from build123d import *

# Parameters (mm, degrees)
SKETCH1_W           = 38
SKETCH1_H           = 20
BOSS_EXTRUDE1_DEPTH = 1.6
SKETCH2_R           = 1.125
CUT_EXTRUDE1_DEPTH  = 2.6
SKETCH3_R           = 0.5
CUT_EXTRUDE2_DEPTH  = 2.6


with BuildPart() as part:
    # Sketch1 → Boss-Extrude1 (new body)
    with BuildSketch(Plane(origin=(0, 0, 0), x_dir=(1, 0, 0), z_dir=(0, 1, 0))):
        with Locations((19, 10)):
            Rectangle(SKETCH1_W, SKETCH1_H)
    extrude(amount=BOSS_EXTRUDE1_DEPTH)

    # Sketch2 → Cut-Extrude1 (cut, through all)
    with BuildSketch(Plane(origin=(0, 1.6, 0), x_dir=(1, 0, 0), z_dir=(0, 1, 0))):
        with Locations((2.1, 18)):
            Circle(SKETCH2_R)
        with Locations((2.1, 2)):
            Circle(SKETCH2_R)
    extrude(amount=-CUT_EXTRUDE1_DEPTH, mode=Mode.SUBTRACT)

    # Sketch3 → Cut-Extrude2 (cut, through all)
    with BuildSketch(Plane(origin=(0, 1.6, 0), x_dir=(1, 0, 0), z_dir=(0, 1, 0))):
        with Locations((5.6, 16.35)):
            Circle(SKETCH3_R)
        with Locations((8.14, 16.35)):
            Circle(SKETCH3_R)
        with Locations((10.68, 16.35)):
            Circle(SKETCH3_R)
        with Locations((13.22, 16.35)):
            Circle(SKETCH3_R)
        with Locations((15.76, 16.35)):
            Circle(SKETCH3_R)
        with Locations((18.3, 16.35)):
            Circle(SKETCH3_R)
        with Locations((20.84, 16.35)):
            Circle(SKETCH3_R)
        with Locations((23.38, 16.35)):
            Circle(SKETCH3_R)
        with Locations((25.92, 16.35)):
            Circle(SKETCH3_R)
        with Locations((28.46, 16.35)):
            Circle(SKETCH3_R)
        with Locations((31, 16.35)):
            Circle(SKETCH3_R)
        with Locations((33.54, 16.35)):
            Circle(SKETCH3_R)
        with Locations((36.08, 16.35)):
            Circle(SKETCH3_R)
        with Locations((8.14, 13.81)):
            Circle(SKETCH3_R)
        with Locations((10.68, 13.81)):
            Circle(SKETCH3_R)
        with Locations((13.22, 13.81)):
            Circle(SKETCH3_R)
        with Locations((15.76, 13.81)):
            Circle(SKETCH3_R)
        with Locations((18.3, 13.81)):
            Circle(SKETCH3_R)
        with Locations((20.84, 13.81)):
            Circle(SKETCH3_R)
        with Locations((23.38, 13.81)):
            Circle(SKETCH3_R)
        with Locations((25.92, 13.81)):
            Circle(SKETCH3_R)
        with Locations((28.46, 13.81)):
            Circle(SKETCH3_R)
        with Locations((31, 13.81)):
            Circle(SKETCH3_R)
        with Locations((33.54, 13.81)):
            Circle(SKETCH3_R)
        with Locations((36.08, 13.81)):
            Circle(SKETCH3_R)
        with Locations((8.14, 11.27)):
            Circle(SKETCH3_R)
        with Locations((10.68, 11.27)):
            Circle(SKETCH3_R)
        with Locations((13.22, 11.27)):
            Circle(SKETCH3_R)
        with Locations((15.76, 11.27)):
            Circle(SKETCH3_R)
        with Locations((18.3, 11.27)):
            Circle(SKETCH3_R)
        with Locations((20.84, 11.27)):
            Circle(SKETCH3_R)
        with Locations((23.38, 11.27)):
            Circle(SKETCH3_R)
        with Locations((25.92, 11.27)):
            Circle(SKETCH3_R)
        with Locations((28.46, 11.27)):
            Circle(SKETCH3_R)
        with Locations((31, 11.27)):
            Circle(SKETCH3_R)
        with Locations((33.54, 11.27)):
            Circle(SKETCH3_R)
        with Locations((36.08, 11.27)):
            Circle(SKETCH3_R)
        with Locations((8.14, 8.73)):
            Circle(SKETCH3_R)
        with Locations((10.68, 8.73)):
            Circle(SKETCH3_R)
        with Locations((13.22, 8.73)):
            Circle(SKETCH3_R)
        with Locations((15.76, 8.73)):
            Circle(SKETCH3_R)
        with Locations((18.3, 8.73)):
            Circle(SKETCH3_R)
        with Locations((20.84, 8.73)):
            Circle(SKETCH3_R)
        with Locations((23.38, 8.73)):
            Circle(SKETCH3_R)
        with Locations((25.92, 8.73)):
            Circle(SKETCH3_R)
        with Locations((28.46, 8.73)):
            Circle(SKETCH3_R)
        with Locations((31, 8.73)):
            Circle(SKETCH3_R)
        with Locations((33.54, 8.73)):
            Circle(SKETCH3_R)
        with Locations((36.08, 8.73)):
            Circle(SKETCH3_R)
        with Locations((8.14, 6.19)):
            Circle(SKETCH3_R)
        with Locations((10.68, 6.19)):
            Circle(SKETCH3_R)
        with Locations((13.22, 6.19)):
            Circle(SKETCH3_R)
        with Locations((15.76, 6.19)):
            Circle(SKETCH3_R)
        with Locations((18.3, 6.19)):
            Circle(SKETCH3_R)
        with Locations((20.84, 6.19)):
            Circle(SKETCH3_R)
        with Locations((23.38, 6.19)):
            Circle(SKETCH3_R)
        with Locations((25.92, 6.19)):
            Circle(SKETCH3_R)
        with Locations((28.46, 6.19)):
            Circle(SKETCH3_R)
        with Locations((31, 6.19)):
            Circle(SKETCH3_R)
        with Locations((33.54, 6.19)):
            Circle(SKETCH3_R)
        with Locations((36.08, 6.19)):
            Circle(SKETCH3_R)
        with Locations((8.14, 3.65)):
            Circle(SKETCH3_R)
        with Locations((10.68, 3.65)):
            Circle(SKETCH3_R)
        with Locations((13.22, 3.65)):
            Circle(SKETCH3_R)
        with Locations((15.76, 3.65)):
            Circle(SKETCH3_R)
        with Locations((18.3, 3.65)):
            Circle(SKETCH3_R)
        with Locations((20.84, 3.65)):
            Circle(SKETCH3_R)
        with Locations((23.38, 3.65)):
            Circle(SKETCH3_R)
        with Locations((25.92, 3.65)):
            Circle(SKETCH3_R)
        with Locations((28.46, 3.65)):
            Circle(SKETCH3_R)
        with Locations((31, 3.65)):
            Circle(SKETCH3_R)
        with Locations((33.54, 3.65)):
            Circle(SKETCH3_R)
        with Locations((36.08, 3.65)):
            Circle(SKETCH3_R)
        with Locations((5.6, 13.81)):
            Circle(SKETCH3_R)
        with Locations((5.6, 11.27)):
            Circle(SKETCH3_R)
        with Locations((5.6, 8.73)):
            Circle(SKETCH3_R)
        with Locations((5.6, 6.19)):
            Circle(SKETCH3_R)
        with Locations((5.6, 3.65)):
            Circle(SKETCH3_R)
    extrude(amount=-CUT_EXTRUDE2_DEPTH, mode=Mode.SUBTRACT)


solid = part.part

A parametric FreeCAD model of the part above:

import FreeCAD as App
import Part
import Sketcher

V = App.Vector
Q = App.Units.Quantity


def add_polygon(sketch, points):
    """Adds a closed chain of lines whose ends are joined by coincident constraints."""
    first, n = sketch.GeometryCount, len(points)
    for a, b in zip(points, points[1:] + points[:1]):
        sketch.addGeometry(Part.LineSegment(App.Vector(*a, 0), App.Vector(*b, 0)), False)
    for i in range(n):
        sketch.addConstraint(Sketcher.Constraint("Coincident", first + i, 2, first + (i + 1) % n, 1))

doc = App.newDocument("Part")
body = doc.addObject("PartDesign::Body", "Body")

sketch1 = doc.addObject("Sketcher::SketchObject", "Sketch")
body.addObject(sketch1)
sketch1.AttachmentSupport = (doc.XZ_Plane, [""])
sketch1.MapMode = "FlatFace"
add_polygon(sketch1, [(0, -20), (0, 0), (38, 0), (38, -20)])
sketch1.addConstraint([
    Sketcher.Constraint("Vertical", 0),
    Sketcher.Constraint("Horizontal", 1),
    Sketcher.Constraint("Vertical", 2),
    Sketcher.Constraint("Horizontal", 3),
    Sketcher.Constraint("Coincident", 0, 2, -1, 1),
    Sketcher.Constraint("DistanceX", 1, 1, 1, 2, Q("38 mm")),
    Sketcher.Constraint("DistanceY", 0, 1, 0, 2, Q("20 mm")),
])
pad1 = doc.addObject("PartDesign::Pad", "Pad")
body.addObject(pad1)
pad1.Profile = sketch1
pad1.Length = 1.6
pad1.Reversed = True

sketch2 = doc.addObject("Sketcher::SketchObject", "Sketch001")
body.addObject(sketch2)
sketch2.AttachmentSupport = (doc.XZ_Plane, [""])
sketch2.MapMode = "FlatFace"
sketch2.AttachmentOffset = App.Placement(V(0, 0, -1.6), App.Rotation())
sketch2.addGeometry([
    Part.Circle(V(2.1, -18, 0), V(0, 0, 1), 1.125),
    Part.Circle(V(2.1, -2, 0), V(0, 0, 1), 1.125),
], False)
sketch2.addConstraint([
    Sketcher.Constraint("Equal", 0, 1),
    Sketcher.Constraint("Vertical", 0, 3, 1, 3),
    Sketcher.Constraint("Diameter", 0, Q("2.25 mm")),
    Sketcher.Constraint("DistanceY", 0, 3, -1, 1, Q("18 mm")),
    Sketcher.Constraint("DistanceY", 1, 3, -1, 1, Q("2 mm")),
    Sketcher.Constraint("DistanceX", -1, 1, 0, 3, Q("2.1 mm")),
])
pocket1 = doc.addObject("PartDesign::Pocket", "Pocket")
body.addObject(pocket1)
pocket1.Profile = sketch2
pocket1.Type = "ThroughAll"
pocket1.Reversed = True

sketch3 = doc.addObject("Sketcher::SketchObject", "Sketch002")
body.addObject(sketch3)
sketch3.AttachmentSupport = (doc.XZ_Plane, [""])
sketch3.MapMode = "FlatFace"
sketch3.AttachmentOffset = App.Placement(V(0, 0, -1.6), App.Rotation())
sketch3.addGeometry([
    Part.Circle(V(5.6, -16.35, 0), V(0, 0, 1), 0.5),
    Part.Circle(V(8.14, -16.35, 0), V(0, 0, 1), 0.5),
    Part.Circle(V(10.68, -16.35, 0), V(0, 0, 1), 0.5),
    Part.Circle(V(13.22, -16.35, 0), V(0, 0, 1), 0.5),
    Part.Circle(V(15.76, -16.35, 0), V(0, 0, 1), 0.5),
    Part.Circle(V(18.3, -16.35, 0), V(0, 0, 1), 0.5),
    Part.Circle(V(20.84, -16.35, 0), V(0, 0, 1), 0.5),
    Part.Circle(V(23.38, -16.35, 0), V(0, 0, 1), 0.5),
    Part.Circle(V(25.92, -16.35, 0), V(0, 0, 1), 0.5),
    Part.Circle(V(28.46, -16.35, 0), V(0, 0, 1), 0.5),
    Part.Circle(V(31, -16.35, 0), V(0, 0, 1), 0.5),
    Part.Circle(V(33.54, -16.35, 0), V(0, 0, 1), 0.5),
    Part.Circle(V(36.08, -16.35, 0), V(0, 0, 1), 0.5),
    Part.Circle(V(8.14, -13.81, 0), V(0, 0, 1), 0.5),
    Part.Circle(V(10.68, -13.81, 0), V(0, 0, 1), 0.5),
    Part.Circle(V(13.22, -13.81, 0), V(0, 0, 1), 0.5),
    Part.Circle(V(15.76, -13.81, 0), V(0, 0, 1), 0.5),
    Part.Circle(V(18.3, -13.81, 0), V(0, 0, 1), 0.5),
    Part.Circle(V(20.84, -13.81, 0), V(0, 0, 1), 0.5),
    Part.Circle(V(23.38, -13.81, 0), V(0, 0, 1), 0.5),
    Part.Circle(V(25.92, -13.81, 0), V(0, 0, 1), 0.5),
    Part.Circle(V(28.46, -13.81, 0), V(0, 0, 1), 0.5),
    Part.Circle(V(31, -13.81, 0), V(0, 0, 1), 0.5),
    Part.Circle(V(33.54, -13.81, 0), V(0, 0, 1), 0.5),
    Part.Circle(V(36.08, -13.81, 0), V(0, 0, 1), 0.5),
    Part.Circle(V(8.14, -11.27, 0), V(0, 0, 1), 0.5),
    Part.Circle(V(10.68, -11.27, 0), V(0, 0, 1), 0.5),
    Part.Circle(V(13.22, -11.27, 0), V(0, 0, 1), 0.5),
    Part.Circle(V(15.76, -11.27, 0), V(0, 0, 1), 0.5),
    Part.Circle(V(18.3, -11.27, 0), V(0, 0, 1), 0.5),
    Part.Circle(V(20.84, -11.27, 0), V(0, 0, 1), 0.5),
    Part.Circle(V(23.38, -11.27, 0), V(0, 0, 1), 0.5),
    Part.Circle(V(25.92, -11.27, 0), V(0, 0, 1), 0.5),
    Part.Circle(V(28.46, -11.27, 0), V(0, 0, 1), 0.5),
    Part.Circle(V(31, -11.27, 0), V(0, 0, 1), 0.5),
    Part.Circle(V(33.54, -11.27, 0), V(0, 0, 1), 0.5),
    Part.Circle(V(36.08, -11.27, 0), V(0, 0, 1), 0.5),
    Part.Circle(V(8.14, -8.73, 0), V(0, 0, 1), 0.5),
    Part.Circle(V(10.68, -8.73, 0), V(0, 0, 1), 0.5),
    Part.Circle(V(13.22, -8.73, 0), V(0, 0, 1), 0.5),
    Part.Circle(V(15.76, -8.73, 0), V(0, 0, 1), 0.5),
    Part.Circle(V(18.3, -8.73, 0), V(0, 0, 1), 0.5),
    Part.Circle(V(20.84, -8.73, 0), V(0, 0, 1), 0.5),
    Part.Circle(V(23.38, -8.73, 0), V(0, 0, 1), 0.5),
    Part.Circle(V(25.92, -8.73, 0), V(0, 0, 1), 0.5),
    Part.Circle(V(28.46, -8.73, 0), V(0, 0, 1), 0.5),
    Part.Circle(V(31, -8.73, 0), V(0, 0, 1), 0.5),
    Part.Circle(V(33.54, -8.73, 0), V(0, 0, 1), 0.5),
    Part.Circle(V(36.08, -8.73, 0), V(0, 0, 1), 0.5),
    Part.Circle(V(8.14, -6.19, 0), V(0, 0, 1), 0.5),
    Part.Circle(V(10.68, -6.19, 0), V(0, 0, 1), 0.5),
    Part.Circle(V(13.22, -6.19, 0), V(0, 0, 1), 0.5),
    Part.Circle(V(15.76, -6.19, 0), V(0, 0, 1), 0.5),
    Part.Circle(V(18.3, -6.19, 0), V(0, 0, 1), 0.5),
    Part.Circle(V(20.84, -6.19, 0), V(0, 0, 1), 0.5),
    Part.Circle(V(23.38, -6.19, 0), V(0, 0, 1), 0.5),
    Part.Circle(V(25.92, -6.19, 0), V(0, 0, 1), 0.5),
    Part.Circle(V(28.46, -6.19, 0), V(0, 0, 1), 0.5),
    Part.Circle(V(31, -6.19, 0), V(0, 0, 1), 0.5),
    Part.Circle(V(33.54, -6.19, 0), V(0, 0, 1), 0.5),
    Part.Circle(V(36.08, -6.19, 0), V(0, 0, 1), 0.5),
    Part.Circle(V(8.14, -3.65, 0), V(0, 0, 1), 0.5),
    Part.Circle(V(10.68, -3.65, 0), V(0, 0, 1), 0.5),
    Part.Circle(V(13.22, -3.65, 0), V(0, 0, 1), 0.5),
    Part.Circle(V(15.76, -3.65, 0), V(0, 0, 1), 0.5),
    Part.Circle(V(18.3, -3.65, 0), V(0, 0, 1), 0.5),
    Part.Circle(V(20.84, -3.65, 0), V(0, 0, 1), 0.5),
    Part.Circle(V(23.38, -3.65, 0), V(0, 0, 1), 0.5),
    Part.Circle(V(25.92, -3.65, 0), V(0, 0, 1), 0.5),
    Part.Circle(V(28.46, -3.65, 0), V(0, 0, 1), 0.5),
    Part.Circle(V(31, -3.65, 0), V(0, 0, 1), 0.5),
    Part.Circle(V(33.54, -3.65, 0), V(0, 0, 1), 0.5),
    Part.Circle(V(36.08, -3.65, 0), V(0, 0, 1), 0.5),
    Part.Circle(V(5.6, -13.81, 0), V(0, 0, 1), 0.5),
    Part.Circle(V(5.6, -11.27, 0), V(0, 0, 1), 0.5),
    Part.Circle(V(5.6, -8.73, 0), V(0, 0, 1), 0.5),
    Part.Circle(V(5.6, -6.19, 0), V(0, 0, 1), 0.5),
    Part.Circle(V(5.6, -3.65, 0), V(0, 0, 1), 0.5),
], False)
sketch3.addConstraint([
    Sketcher.Constraint("Equal", 0, 1),
    Sketcher.Constraint("Equal", 1, 2),
    Sketcher.Constraint("Equal", 2, 3),
    Sketcher.Constraint("Equal", 3, 4),
    Sketcher.Constraint("Equal", 4, 5),
    Sketcher.Constraint("Equal", 5, 6),
    Sketcher.Constraint("Equal", 6, 7),
    Sketcher.Constraint("Equal", 7, 8),
    Sketcher.Constraint("Equal", 8, 9),
    Sketcher.Constraint("Equal", 9, 10),
    Sketcher.Constraint("Equal", 10, 11),
    Sketcher.Constraint("Equal", 11, 12),
    Sketcher.Constraint("Equal", 12, 13),
    Sketcher.Constraint("Equal", 13, 14),
    Sketcher.Constraint("Equal", 14, 15),
    Sketcher.Constraint("Equal", 15, 16),
    Sketcher.Constraint("Equal", 16, 17),
    Sketcher.Constraint("Equal", 17, 18),
    Sketcher.Constraint("Equal", 18, 19),
    Sketcher.Constraint("Equal", 19, 20),
    Sketcher.Constraint("Equal", 20, 21),
    Sketcher.Constraint("Equal", 21, 22),
    Sketcher.Constraint("Equal", 22, 23),
    Sketcher.Constraint("Equal", 23, 24),
    Sketcher.Constraint("Equal", 24, 25),
    Sketcher.Constraint("Equal", 25, 26),
    Sketcher.Constraint("Equal", 26, 27),
    Sketcher.Constraint("Equal", 27, 28),
    Sketcher.Constraint("Equal", 28, 29),
    Sketcher.Constraint("Equal", 29, 30),
    Sketcher.Constraint("Equal", 30, 31),
    Sketcher.Constraint("Equal", 31, 32),
    Sketcher.Constraint("Equal", 32, 33),
    Sketcher.Constraint("Equal", 33, 34),
    Sketcher.Constraint("Equal", 34, 35),
    Sketcher.Constraint("Equal", 35, 36),
    Sketcher.Constraint("Equal", 36, 37),
    Sketcher.Constraint("Equal", 37, 38),
    Sketcher.Constraint("Equal", 38, 39),
    Sketcher.Constraint("Equal", 39, 40),
    Sketcher.Constraint("Equal", 40, 41),
    Sketcher.Constraint("Equal", 41, 42),
    Sketcher.Constraint("Equal", 42, 43),
    Sketcher.Constraint("Equal", 43, 44),
    Sketcher.Constraint("Equal", 44, 45),
    Sketcher.Constraint("Equal", 45, 46),
    Sketcher.Constraint("Equal", 46, 47),
    Sketcher.Constraint("Equal", 47, 48),
    Sketcher.Constraint("Equal", 48, 49),
    Sketcher.Constraint("Equal", 49, 50),
    Sketcher.Constraint("Equal", 50, 51),
    Sketcher.Constraint("Equal", 51, 52),
    Sketcher.Constraint("Equal", 52, 53),
    Sketcher.Constraint("Equal", 53, 54),
    Sketcher.Constraint("Equal", 54, 55),
    Sketcher.Constraint("Equal", 55, 56),
    Sketcher.Constraint("Equal", 56, 57),
    Sketcher.Constraint("Equal", 57, 58),
    Sketcher.Constraint("Equal", 58, 59),
    Sketcher.Constraint("Equal", 59, 60),
    Sketcher.Constraint("Equal", 60, 61),
    Sketcher.Constraint("Equal", 61, 62),
    Sketcher.Constraint("Equal", 62, 63),
    Sketcher.Constraint("Equal", 63, 64),
    Sketcher.Constraint("Equal", 64, 65),
    Sketcher.Constraint("Equal", 65, 66),
    Sketcher.Constraint("Equal", 66, 67),
    Sketcher.Constraint("Equal", 67, 68),
    Sketcher.Constraint("Equal", 68, 69),
    Sketcher.Constraint("Equal", 69, 70),
    Sketcher.Constraint("Equal", 70, 71),
    Sketcher.Constraint("Equal", 71, 72),
    Sketcher.Constraint("Equal", 72, 73),
    Sketcher.Constraint("Equal", 73, 74),
    Sketcher.Constraint("Equal", 74, 75),
    Sketcher.Constraint("Equal", 75, 76),
    Sketcher.Constraint("Equal", 76, 77),
    Sketcher.Constraint("Horizontal", 0, 3, 1, 3),
    Sketcher.Constraint("Horizontal", 1, 3, 2, 3),
    Sketcher.Constraint("Horizontal", 2, 3, 3, 3),
    Sketcher.Constraint("Horizontal", 3, 3, 4, 3),
    Sketcher.Constraint("Horizontal", 4, 3, 5, 3),
    Sketcher.Constraint("Horizontal", 5, 3, 6, 3),
    Sketcher.Constraint("Horizontal", 6, 3, 7, 3),
    Sketcher.Constraint("Horizontal", 7, 3, 8, 3),
    Sketcher.Constraint("Horizontal", 8, 3, 9, 3),
    Sketcher.Constraint("Horizontal", 9, 3, 10, 3),
    Sketcher.Constraint("Horizontal", 10, 3, 11, 3),
    Sketcher.Constraint("Horizontal", 11, 3, 12, 3),
    Sketcher.Constraint("Horizontal", 13, 3, 14, 3),
    Sketcher.Constraint("Horizontal", 14, 3, 15, 3),
    Sketcher.Constraint("Horizontal", 15, 3, 16, 3),
    Sketcher.Constraint("Horizontal", 16, 3, 17, 3),
    Sketcher.Constraint("Horizontal", 17, 3, 18, 3),
    Sketcher.Constraint("Horizontal", 18, 3, 19, 3),
    Sketcher.Constraint("Horizontal", 19, 3, 20, 3),
    Sketcher.Constraint("Horizontal", 20, 3, 21, 3),
    Sketcher.Constraint("Horizontal", 21, 3, 22, 3),
    Sketcher.Constraint("Horizontal", 22, 3, 23, 3),
    Sketcher.Constraint("Horizontal", 23, 3, 24, 3),
    Sketcher.Constraint("Horizontal", 25, 3, 26, 3),
    Sketcher.Constraint("Horizontal", 26, 3, 27, 3),
    Sketcher.Constraint("Horizontal", 27, 3, 28, 3),
    Sketcher.Constraint("Horizontal", 28, 3, 29, 3),
    Sketcher.Constraint("Horizontal", 29, 3, 30, 3),
    Sketcher.Constraint("Horizontal", 30, 3, 31, 3),
    Sketcher.Constraint("Horizontal", 31, 3, 32, 3),
    Sketcher.Constraint("Horizontal", 32, 3, 33, 3),
    Sketcher.Constraint("Horizontal", 33, 3, 34, 3),
    Sketcher.Constraint("Horizontal", 34, 3, 35, 3),
    Sketcher.Constraint("Horizontal", 35, 3, 36, 3),
    Sketcher.Constraint("Horizontal", 37, 3, 38, 3),
    Sketcher.Constraint("Horizontal", 38, 3, 39, 3),
    Sketcher.Constraint("Horizontal", 39, 3, 40, 3),
    Sketcher.Constraint("Horizontal", 40, 3, 41, 3),
    Sketcher.Constraint("Horizontal", 41, 3, 42, 3),
    Sketcher.Constraint("Horizontal", 42, 3, 43, 3),
    Sketcher.Constraint("Horizontal", 43, 3, 44, 3),
    Sketcher.Constraint("Horizontal", 44, 3, 45, 3),
    Sketcher.Constraint("Horizontal", 45, 3, 46, 3),
    Sketcher.Constraint("Horizontal", 46, 3, 47, 3),
    Sketcher.Constraint("Horizontal", 47, 3, 48, 3),
    Sketcher.Constraint("Horizontal", 49, 3, 50, 3),
    Sketcher.Constraint("Horizontal", 50, 3, 51, 3),
    Sketcher.Constraint("Horizontal", 51, 3, 52, 3),
    Sketcher.Constraint("Horizontal", 52, 3, 53, 3),
    Sketcher.Constraint("Horizontal", 53, 3, 54, 3),
    Sketcher.Constraint("Horizontal", 54, 3, 55, 3),
    Sketcher.Constraint("Horizontal", 55, 3, 56, 3),
    Sketcher.Constraint("Horizontal", 56, 3, 57, 3),
    Sketcher.Constraint("Horizontal", 57, 3, 58, 3),
    Sketcher.Constraint("Horizontal", 58, 3, 59, 3),
    Sketcher.Constraint("Horizontal", 59, 3, 60, 3),
    Sketcher.Constraint("Horizontal", 61, 3, 62, 3),
    Sketcher.Constraint("Horizontal", 62, 3, 63, 3),
    Sketcher.Constraint("Horizontal", 63, 3, 64, 3),
    Sketcher.Constraint("Horizontal", 64, 3, 65, 3),
    Sketcher.Constraint("Horizontal", 65, 3, 66, 3),
    Sketcher.Constraint("Horizontal", 66, 3, 67, 3),
    Sketcher.Constraint("Horizontal", 67, 3, 68, 3),
    Sketcher.Constraint("Horizontal", 68, 3, 69, 3),
    Sketcher.Constraint("Horizontal", 69, 3, 70, 3),
    Sketcher.Constraint("Horizontal", 70, 3, 71, 3),
    Sketcher.Constraint("Horizontal", 71, 3, 72, 3),
    Sketcher.Constraint("Horizontal", 24, 3, 73, 3),
    Sketcher.Constraint("Horizontal", 36, 3, 74, 3),
    Sketcher.Constraint("Horizontal", 48, 3, 75, 3),
    Sketcher.Constraint("Horizontal", 60, 3, 76, 3),
    Sketcher.Constraint("Horizontal", 72, 3, 77, 3),
    Sketcher.Constraint("Vertical", 1, 3, 13, 3),
    Sketcher.Constraint("Vertical", 2, 3, 14, 3),
    Sketcher.Constraint("Vertical", 3, 3, 15, 3),
    Sketcher.Constraint("Vertical", 4, 3, 16, 3),
    Sketcher.Constraint("Vertical", 5, 3, 17, 3),
    Sketcher.Constraint("Vertical", 6, 3, 18, 3),
    Sketcher.Constraint("Vertical", 7, 3, 19, 3),
    Sketcher.Constraint("Vertical", 8, 3, 20, 3),
    Sketcher.Constraint("Vertical", 9, 3, 21, 3),
    Sketcher.Constraint("Vertical", 10, 3, 22, 3),
    Sketcher.Constraint("Vertical", 11, 3, 23, 3),
    Sketcher.Constraint("Vertical", 12, 3, 24, 3),
    Sketcher.Constraint("Vertical", 13, 3, 25, 3),
    Sketcher.Constraint("Vertical", 14, 3, 26, 3),
    Sketcher.Constraint("Vertical", 15, 3, 27, 3),
    Sketcher.Constraint("Vertical", 16, 3, 28, 3),
    Sketcher.Constraint("Vertical", 17, 3, 29, 3),
    Sketcher.Constraint("Vertical", 18, 3, 30, 3),
    Sketcher.Constraint("Vertical", 19, 3, 31, 3),
    Sketcher.Constraint("Vertical", 20, 3, 32, 3),
    Sketcher.Constraint("Vertical", 21, 3, 33, 3),
    Sketcher.Constraint("Vertical", 22, 3, 34, 3),
    Sketcher.Constraint("Vertical", 23, 3, 35, 3),
    Sketcher.Constraint("Vertical", 24, 3, 36, 3),
    Sketcher.Constraint("Vertical", 25, 3, 37, 3),
    Sketcher.Constraint("Vertical", 26, 3, 38, 3),
    Sketcher.Constraint("Vertical", 27, 3, 39, 3),
    Sketcher.Constraint("Vertical", 28, 3, 40, 3),
    Sketcher.Constraint("Vertical", 29, 3, 41, 3),
    Sketcher.Constraint("Vertical", 30, 3, 42, 3),
    Sketcher.Constraint("Vertical", 31, 3, 43, 3),
    Sketcher.Constraint("Vertical", 32, 3, 44, 3),
    Sketcher.Constraint("Vertical", 33, 3, 45, 3),
    Sketcher.Constraint("Vertical", 34, 3, 46, 3),
    Sketcher.Constraint("Vertical", 35, 3, 47, 3),
    Sketcher.Constraint("Vertical", 36, 3, 48, 3),
    Sketcher.Constraint("Vertical", 37, 3, 49, 3),
    Sketcher.Constraint("Vertical", 38, 3, 50, 3),
    Sketcher.Constraint("Vertical", 39, 3, 51, 3),
    Sketcher.Constraint("Vertical", 40, 3, 52, 3),
    Sketcher.Constraint("Vertical", 41, 3, 53, 3),
    Sketcher.Constraint("Vertical", 42, 3, 54, 3),
    Sketcher.Constraint("Vertical", 43, 3, 55, 3),
    Sketcher.Constraint("Vertical", 44, 3, 56, 3),
    Sketcher.Constraint("Vertical", 45, 3, 57, 3),
    Sketcher.Constraint("Vertical", 46, 3, 58, 3),
    Sketcher.Constraint("Vertical", 47, 3, 59, 3),
    Sketcher.Constraint("Vertical", 48, 3, 60, 3),
    Sketcher.Constraint("Vertical", 49, 3, 61, 3),
    Sketcher.Constraint("Vertical", 50, 3, 62, 3),
    Sketcher.Constraint("Vertical", 51, 3, 63, 3),
    Sketcher.Constraint("Vertical", 52, 3, 64, 3),
    Sketcher.Constraint("Vertical", 53, 3, 65, 3),
    Sketcher.Constraint("Vertical", 54, 3, 66, 3),
    Sketcher.Constraint("Vertical", 55, 3, 67, 3),
    Sketcher.Constraint("Vertical", 56, 3, 68, 3),
    Sketcher.Constraint("Vertical", 57, 3, 69, 3),
    Sketcher.Constraint("Vertical", 58, 3, 70, 3),
    Sketcher.Constraint("Vertical", 59, 3, 71, 3),
    Sketcher.Constraint("Vertical", 60, 3, 72, 3),
    Sketcher.Constraint("Vertical", 0, 3, 73, 3),
    Sketcher.Constraint("Vertical", 73, 3, 74, 3),
    Sketcher.Constraint("Vertical", 74, 3, 75, 3),
    Sketcher.Constraint("Vertical", 75, 3, 76, 3),
    Sketcher.Constraint("Vertical", 76, 3, 77, 3),
    Sketcher.Constraint("Diameter", 0, Q("1 mm")),
    Sketcher.Constraint("DistanceX", -1, 1, 10, 3, Q("31 mm")),
    Sketcher.Constraint("DistanceX", -1, 1, 0, 3, Q("5.6 mm")),
    Sketcher.Constraint("DistanceX", -1, 1, 5, 3, Q("18.3 mm")),
    Sketcher.Constraint("DistanceY", 0, 3, -1, 1, Q("16.35 mm")),
    Sketcher.Constraint("DistanceX", -1, 1, 1, 3, Q("8.14 mm")),
    Sketcher.Constraint("DistanceX", -1, 1, 2, 3, Q("10.68 mm")),
    Sketcher.Constraint("DistanceX", -1, 1, 3, 3, Q("13.22 mm")),
    Sketcher.Constraint("DistanceX", -1, 1, 4, 3, Q("15.76 mm")),
    Sketcher.Constraint("DistanceX", -1, 1, 6, 3, Q("20.84 mm")),
    Sketcher.Constraint("DistanceX", -1, 1, 7, 3, Q("23.38 mm")),
    Sketcher.Constraint("DistanceX", -1, 1, 8, 3, Q("25.92 mm")),
    Sketcher.Constraint("DistanceX", -1, 1, 9, 3, Q("28.46 mm")),
    Sketcher.Constraint("DistanceX", -1, 1, 11, 3, Q("33.54 mm")),
    Sketcher.Constraint("DistanceX", -1, 1, 12, 3, Q("36.08 mm")),
    Sketcher.Constraint("DistanceY", 13, 3, -1, 1, Q("13.81 mm")),
    Sketcher.Constraint("DistanceY", 25, 3, -1, 1, Q("11.27 mm")),
    Sketcher.Constraint("DistanceY", 37, 3, -1, 1, Q("8.73 mm")),
    Sketcher.Constraint("DistanceY", 49, 3, -1, 1, Q("6.19 mm")),
    Sketcher.Constraint("DistanceY", 61, 3, -1, 1, Q("3.65 mm")),
])
pocket2 = doc.addObject("PartDesign::Pocket", "Pocket001")
body.addObject(pocket2)
pocket2.Profile = sketch3
pocket2.Type = "ThroughAll"
pocket2.Reversed = True

doc.recompute()
